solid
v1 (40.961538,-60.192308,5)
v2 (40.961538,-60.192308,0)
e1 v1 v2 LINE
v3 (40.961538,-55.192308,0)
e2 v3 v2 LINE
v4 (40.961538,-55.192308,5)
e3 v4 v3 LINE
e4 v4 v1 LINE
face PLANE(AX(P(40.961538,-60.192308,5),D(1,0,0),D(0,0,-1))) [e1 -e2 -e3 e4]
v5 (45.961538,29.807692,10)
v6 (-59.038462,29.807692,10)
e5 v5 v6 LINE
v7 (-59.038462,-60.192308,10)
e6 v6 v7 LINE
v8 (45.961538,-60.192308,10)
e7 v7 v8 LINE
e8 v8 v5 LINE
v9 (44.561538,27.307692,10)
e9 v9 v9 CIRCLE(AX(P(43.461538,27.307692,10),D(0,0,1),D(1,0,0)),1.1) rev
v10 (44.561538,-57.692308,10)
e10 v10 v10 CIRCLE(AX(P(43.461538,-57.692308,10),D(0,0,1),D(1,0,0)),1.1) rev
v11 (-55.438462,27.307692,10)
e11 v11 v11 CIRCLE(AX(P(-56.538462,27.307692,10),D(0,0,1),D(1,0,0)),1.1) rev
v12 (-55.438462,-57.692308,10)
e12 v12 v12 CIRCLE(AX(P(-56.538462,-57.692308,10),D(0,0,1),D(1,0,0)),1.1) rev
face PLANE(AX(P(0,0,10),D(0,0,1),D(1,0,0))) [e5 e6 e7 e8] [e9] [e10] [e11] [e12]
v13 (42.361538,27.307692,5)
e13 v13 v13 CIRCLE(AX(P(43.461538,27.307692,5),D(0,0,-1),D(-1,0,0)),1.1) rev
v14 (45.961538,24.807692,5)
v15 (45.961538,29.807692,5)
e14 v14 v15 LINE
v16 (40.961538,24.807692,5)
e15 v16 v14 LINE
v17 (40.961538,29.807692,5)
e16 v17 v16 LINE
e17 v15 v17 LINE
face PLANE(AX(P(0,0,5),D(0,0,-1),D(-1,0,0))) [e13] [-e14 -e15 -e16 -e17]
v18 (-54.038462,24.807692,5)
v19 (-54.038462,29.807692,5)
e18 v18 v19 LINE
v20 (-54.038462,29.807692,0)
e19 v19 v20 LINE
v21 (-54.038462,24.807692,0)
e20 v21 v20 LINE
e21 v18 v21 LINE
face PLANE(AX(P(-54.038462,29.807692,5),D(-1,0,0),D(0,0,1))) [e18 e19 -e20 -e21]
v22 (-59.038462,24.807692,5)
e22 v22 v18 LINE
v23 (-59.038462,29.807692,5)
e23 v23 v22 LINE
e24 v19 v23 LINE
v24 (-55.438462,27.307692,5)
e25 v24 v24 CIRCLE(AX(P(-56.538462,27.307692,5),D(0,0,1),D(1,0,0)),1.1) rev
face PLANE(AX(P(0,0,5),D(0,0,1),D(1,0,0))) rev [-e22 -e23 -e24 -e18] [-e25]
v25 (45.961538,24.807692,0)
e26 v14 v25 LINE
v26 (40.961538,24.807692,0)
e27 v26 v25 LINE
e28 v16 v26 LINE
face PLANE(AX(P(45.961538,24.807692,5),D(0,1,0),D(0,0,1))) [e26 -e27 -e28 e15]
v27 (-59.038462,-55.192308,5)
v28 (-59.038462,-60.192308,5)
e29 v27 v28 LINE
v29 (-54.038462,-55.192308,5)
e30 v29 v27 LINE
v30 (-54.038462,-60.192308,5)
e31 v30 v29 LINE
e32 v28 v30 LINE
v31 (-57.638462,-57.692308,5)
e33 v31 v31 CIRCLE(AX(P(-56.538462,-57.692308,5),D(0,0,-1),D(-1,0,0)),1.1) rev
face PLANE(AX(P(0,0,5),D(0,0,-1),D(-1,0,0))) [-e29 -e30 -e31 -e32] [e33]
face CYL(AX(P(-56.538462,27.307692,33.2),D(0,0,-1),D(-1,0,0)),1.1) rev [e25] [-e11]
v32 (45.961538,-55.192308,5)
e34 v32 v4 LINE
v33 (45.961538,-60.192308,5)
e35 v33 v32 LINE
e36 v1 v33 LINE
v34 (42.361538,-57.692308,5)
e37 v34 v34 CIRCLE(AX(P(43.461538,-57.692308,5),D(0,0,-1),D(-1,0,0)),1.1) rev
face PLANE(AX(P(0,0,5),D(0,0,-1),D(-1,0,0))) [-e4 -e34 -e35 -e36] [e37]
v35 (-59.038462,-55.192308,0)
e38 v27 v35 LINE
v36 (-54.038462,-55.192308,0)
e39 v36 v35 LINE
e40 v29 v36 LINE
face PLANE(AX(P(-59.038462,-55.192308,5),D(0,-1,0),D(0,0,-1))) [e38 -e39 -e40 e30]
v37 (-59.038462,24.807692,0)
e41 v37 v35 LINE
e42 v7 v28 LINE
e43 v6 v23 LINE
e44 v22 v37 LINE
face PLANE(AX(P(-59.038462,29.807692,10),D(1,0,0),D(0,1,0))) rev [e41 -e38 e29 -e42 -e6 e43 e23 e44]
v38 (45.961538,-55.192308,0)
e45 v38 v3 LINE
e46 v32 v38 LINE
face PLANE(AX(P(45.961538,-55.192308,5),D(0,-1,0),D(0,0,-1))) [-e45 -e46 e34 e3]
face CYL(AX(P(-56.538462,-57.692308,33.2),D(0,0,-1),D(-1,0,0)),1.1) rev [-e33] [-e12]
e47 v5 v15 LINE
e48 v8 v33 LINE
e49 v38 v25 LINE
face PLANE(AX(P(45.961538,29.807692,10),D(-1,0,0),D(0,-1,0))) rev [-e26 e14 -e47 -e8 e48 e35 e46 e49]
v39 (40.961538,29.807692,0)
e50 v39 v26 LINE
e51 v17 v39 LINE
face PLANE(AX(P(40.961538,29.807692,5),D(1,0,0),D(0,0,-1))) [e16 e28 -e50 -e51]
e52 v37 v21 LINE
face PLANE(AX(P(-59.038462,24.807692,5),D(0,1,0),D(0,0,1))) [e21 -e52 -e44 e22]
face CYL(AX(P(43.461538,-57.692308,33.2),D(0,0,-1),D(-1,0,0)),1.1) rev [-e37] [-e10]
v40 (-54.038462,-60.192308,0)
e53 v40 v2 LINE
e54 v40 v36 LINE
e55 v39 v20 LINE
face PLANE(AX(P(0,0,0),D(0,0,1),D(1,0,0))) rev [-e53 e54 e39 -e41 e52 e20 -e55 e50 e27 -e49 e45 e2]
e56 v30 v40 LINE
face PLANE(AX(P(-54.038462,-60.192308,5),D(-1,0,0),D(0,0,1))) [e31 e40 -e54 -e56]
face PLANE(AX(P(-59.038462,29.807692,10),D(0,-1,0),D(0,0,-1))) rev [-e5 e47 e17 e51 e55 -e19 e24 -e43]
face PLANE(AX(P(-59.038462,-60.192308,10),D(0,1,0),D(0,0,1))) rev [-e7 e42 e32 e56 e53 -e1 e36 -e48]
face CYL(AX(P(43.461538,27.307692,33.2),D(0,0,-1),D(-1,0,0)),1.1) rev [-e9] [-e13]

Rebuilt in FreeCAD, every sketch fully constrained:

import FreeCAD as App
import Part
import Sketcher
from FreeCAD import Vector

doc = App.newDocument("Part")
body = doc.addObject("PartDesign::Body", "Body")

# Sketch on XY plane
sketch1 = doc.addObject("Sketcher::SketchObject", "Sketch")
body.addObject(sketch1)
sketch1.AttachmentSupport = (doc.XY_Plane, [""])
sketch1.MapMode = "FlatFace"
sketch1.addGeometry(Part.LineSegment(Vector(-59, 30, 0), Vector(-59, -60, 0)), False)
sketch1.addGeometry(Part.LineSegment(Vector(-59, -60, 0), Vector(46, -60, 0)), False)
sketch1.addGeometry(Part.LineSegment(Vector(46, -60, 0), Vector(46, 30, 0)), False)
sketch1.addGeometry(Part.LineSegment(Vector(46, 30, 0), Vector(-59, 30, 0)), False)
sketch1.addConstraint(Sketcher.Constraint("Coincident", 0, 2, 1, 1))
sketch1.addConstraint(Sketcher.Constraint("Coincident", 1, 2, 2, 1))
sketch1.addConstraint(Sketcher.Constraint("Coincident", 2, 2, 3, 1))
sketch1.addConstraint(Sketcher.Constraint("Coincident", 3, 2, 0, 1))
sketch1.addConstraint(Sketcher.Constraint("Vertical", 0))
sketch1.addConstraint(Sketcher.Constraint("Horizontal", 1))
sketch1.addConstraint(Sketcher.Constraint("Vertical", 2))
sketch1.addConstraint(Sketcher.Constraint("Horizontal", 3))
sketch1.addConstraint(Sketcher.Constraint("DistanceX", 1, 1, 1, 2, 105.0))
sketch1.addConstraint(Sketcher.Constraint("DistanceY", 0, 2, 0, 1, 90.0))
sketch1.addConstraint(Sketcher.Constraint("DistanceX", 0, 2, -1, 1, 59.038462))
sketch1.addConstraint(Sketcher.Constraint("DistanceY", 0, 2, -1, 1, 60.192308))
pad1 = doc.addObject("PartDesign::Pad", "Pad")
body.addObject(pad1)
pad1.Profile = sketch1
pad1.Length = 10

# Sketch on XY plane
sketch2 = doc.addObject("Sketcher::SketchObject", "Sketch001")
body.addObject(sketch2)
sketch2.AttachmentSupport = (doc.XY_Plane, [""])
sketch2.MapMode = "FlatFace"
sketch2.addGeometry(Part.LineSegment(Vector(41, -55, 0), Vector(41, -60, 0)), False)
sketch2.addGeometry(Part.LineSegment(Vector(41, -60, 0), Vector(46, -60, 0)), False)
sketch2.addGeometry(Part.LineSegment(Vector(46, -60, 0), Vector(46, -55, 0)), False)
sketch2.addGeometry(Part.LineSegment(Vector(46, -55, 0), Vector(41, -55, 0)), False)
sketch2.addGeometry(Part.LineSegment(Vector(-59, -55, 0), Vector(-59, -60, 0)), False)
sketch2.addGeometry(Part.LineSegment(Vector(-59, -60, 0), Vector(-54, -60, 0)), False)
sketch2.addGeometry(Part.LineSegment(Vector(-54, -60, 0), Vector(-54, -55, 0)), False)
sketch2.addGeometry(Part.LineSegment(Vector(-54, -55, 0), Vector(-59, -55, 0)), False)
sketch2.addGeometry(Part.LineSegment(Vector(41, 30, 0), Vector(41, 25, 0)), False)
sketch2.addGeometry(Part.LineSegment(Vector(41, 25, 0), Vector(46, 25, 0)), False)
sketch2.addGeometry(Part.LineSegment(Vector(46, 25, 0), Vector(46, 30, 0)), False)
sketch2.addGeometry(Part.LineSegment(Vector(46, 30, 0), Vector(41, 30, 0)), False)
sketch2.addGeometry(Part.LineSegment(Vector(-59, 30, 0), Vector(-59, 25, 0)), False)
sketch2.addGeometry(Part.LineSegment(Vector(-59, 25, 0), Vector(-54, 25, 0)), False)
sketch2.addGeometry(Part.LineSegment(Vector(-54, 25, 0), Vector(-54, 30, 0)), False)
sketch2.addGeometry(Part.LineSegment(Vector(-54, 30, 0), Vector(-59, 30, 0)), False)
sketch2.addConstraint(Sketcher.Constraint("Coincident", 0, 2, 1, 1))
sketch2.addConstraint(Sketcher.Constraint("Coincident", 1, 2, 2, 1))
sketch2.addConstraint(Sketcher.Constraint("Coincident", 2, 2, 3, 1))
sketch2.addConstraint(Sketcher.Constraint("Coincident", 3, 2, 0, 1))
sketch2.addConstraint(Sketcher.Constraint("Coincident", 4, 2, 5, 1))
sketch2.addConstraint(Sketcher.Constraint("Coincident", 5, 2, 6, 1))
sketch2.addConstraint(Sketcher.Constraint("Coincident", 6, 2, 7, 1))
sketch2.addConstraint(Sketcher.Constraint("Coincident", 7, 2, 4, 1))
sketch2.addConstraint(Sketcher.Constraint("Coincident", 8, 2, 9, 1))
sketch2.addConstraint(Sketcher.Constraint("Coincident", 9, 2, 10, 1))
sketch2.addConstraint(Sketcher.Constraint("Coincident", 10, 2, 11, 1))
sketch2.addConstraint(Sketcher.Constraint("Coincident", 11, 2, 8, 1))
sketch2.addConstraint(Sketcher.Constraint("Coincident", 12, 2, 13, 1))
sketch2.addConstraint(Sketcher.Constraint("Coincident", 13, 2, 14, 1))
sketch2.addConstraint(Sketcher.Constraint("Coincident", 14, 2, 15, 1))
sketch2.addConstraint(Sketcher.Constraint("Coincident", 15, 2, 12, 1))
sketch2.addConstraint(Sketcher.Constraint("Vertical", 0))
sketch2.addConstraint(Sketcher.Constraint("Horizontal", 1))
sketch2.addConstraint(Sketcher.Constraint("Vertical", 2))
sketch2.addConstraint(Sketcher.Constraint("Horizontal", 3))
sketch2.addConstraint(Sketcher.Constraint("Vertical", 4))
sketch2.addConstraint(Sketcher.Constraint("Horizontal", 5))
sketch2.addConstraint(Sketcher.Constraint("Vertical", 6))
sketch2.addConstraint(Sketcher.Constraint("Horizontal", 7))
sketch2.addConstraint(Sketcher.Constraint("Vertical", 8))
sketch2.addConstraint(Sketcher.Constraint("Horizontal", 9))
sketch2.addConstraint(Sketcher.Constraint("Vertical", 10))
sketch2.addConstraint(Sketcher.Constraint("Horizontal", 11))
sketch2.addConstraint(Sketcher.Constraint("Vertical", 12))
sketch2.addConstraint(Sketcher.Constraint("Horizontal", 13))
sketch2.addConstraint(Sketcher.Constraint("Vertical", 14))
sketch2.addConstraint(Sketcher.Constraint("Horizontal", 15))
sketch2.addConstraint(Sketcher.Constraint("Horizontal", 1, 2, 4, 2))
sketch2.addConstraint(Sketcher.Constraint("Horizontal", 3, 2, 6, 2))
sketch2.addConstraint(Sketcher.Constraint("Horizontal", 9, 2, 12, 2))
sketch2.addConstraint(Sketcher.Constraint("Horizontal", 11, 2, 14, 2))
sketch2.addConstraint(Sketcher.Constraint("Vertical", 3, 2, 8, 2))
sketch2.addConstraint(Sketcher.Constraint("Vertical", 2, 2, 9, 2))
sketch2.addConstraint(Sketcher.Constraint("Vertical", 7, 2, 12, 2))
sketch2.addConstraint(Sketcher.Constraint("Vertical", 6, 2, 13, 2))
sketch2.addConstraint(Sketcher.Constraint("Equal", 3, 5))
sketch2.addConstraint(Sketcher.Constraint("Equal", 15, 0))
sketch2.addConstraint(Sketcher.Constraint("Equal", 6, 8))
sketch2.addConstraint(Sketcher.Constraint("DistanceX", 1, 1, 1, 2, 5.0))
sketch2.addConstraint(Sketcher.Constraint("DistanceX", 4, 2, 0, 2, 100.0))
sketch2.addConstraint(Sketcher.Constraint("DistanceY", 3, 2, 8, 2, 80.0))
sketch2.addConstraint(Sketcher.Constraint("DistanceX", -1, 1, 0, 2, 40.961538))
sketch2.addConstraint(Sketcher.Constraint("DistanceY", 0, 2, -1, 1, 60.192308))
pocket1 = doc.addObject("PartDesign::Pocket", "Pocket")
body.addObject(pocket1)
pocket1.Profile = sketch2
pocket1.Length = 5
pocket1.Reversed = True

# Sketch on XY plane
sketch3 = doc.addObject("Sketcher::SketchObject", "Sketch002")
body.addObject(sketch3)
sketch3.AttachmentSupport = (doc.XY_Plane, [""])
sketch3.MapMode = "FlatFace"
sketch3.addGeometry(Part.Circle(Vector(-56.5, -57.7, 0), Vector(0, 0, 1), 1.1), False)
sketch3.addGeometry(Part.Circle(Vector(43.5, -57.7, 0), Vector(0, 0, 1), 1.1), False)
sketch3.addGeometry(Part.Circle(Vector(43.5, 27.3, 0), Vector(0, 0, 1), 1.1), False)
sketch3.addGeometry(Part.Circle(Vector(-56.5, 27.3, 0), Vector(0, 0, 1), 1.1), False)
sketch3.addConstraint(Sketcher.Constraint("Equal", 0, 1))
sketch3.addConstraint(Sketcher.Constraint("Equal", 1, 2))
sketch3.addConstraint(Sketcher.Constraint("Equal", 2, 3))
sketch3.addConstraint(Sketcher.Constraint("Horizontal", 0, 3, 1, 3))
sketch3.addConstraint(Sketcher.Constraint("Horizontal", 2, 3, 3, 3))
sketch3.addConstraint(Sketcher.Constraint("Vertical", 1, 3, 2, 3))
sketch3.addConstraint(Sketcher.Constraint("Vertical", 0, 3, 3, 3))
sketch3.addConstraint(Sketcher.Constraint("Diameter", 0, 2.2))
sketch3.addConstraint(Sketcher.Constraint("DistanceX", 0, 3, 1, 3, 100.0))
sketch3.addConstraint(Sketcher.Constraint("DistanceY", 1, 3, 2, 3, 85.0))
sketch3.addConstraint(Sketcher.Constraint("DistanceX", 0, 3, -1, 1, 56.538462))
sketch3.addConstraint(Sketcher.Constraint("DistanceY", 0, 3, -1, 1, 57.692308))
pocket2 = doc.addObject("PartDesign::Pocket", "Pocket001")
body.addObject(pocket2)
pocket2.Profile = sketch3
pocket2.Length = 33.2
pocket2.Reversed = True

doc.recompute()
